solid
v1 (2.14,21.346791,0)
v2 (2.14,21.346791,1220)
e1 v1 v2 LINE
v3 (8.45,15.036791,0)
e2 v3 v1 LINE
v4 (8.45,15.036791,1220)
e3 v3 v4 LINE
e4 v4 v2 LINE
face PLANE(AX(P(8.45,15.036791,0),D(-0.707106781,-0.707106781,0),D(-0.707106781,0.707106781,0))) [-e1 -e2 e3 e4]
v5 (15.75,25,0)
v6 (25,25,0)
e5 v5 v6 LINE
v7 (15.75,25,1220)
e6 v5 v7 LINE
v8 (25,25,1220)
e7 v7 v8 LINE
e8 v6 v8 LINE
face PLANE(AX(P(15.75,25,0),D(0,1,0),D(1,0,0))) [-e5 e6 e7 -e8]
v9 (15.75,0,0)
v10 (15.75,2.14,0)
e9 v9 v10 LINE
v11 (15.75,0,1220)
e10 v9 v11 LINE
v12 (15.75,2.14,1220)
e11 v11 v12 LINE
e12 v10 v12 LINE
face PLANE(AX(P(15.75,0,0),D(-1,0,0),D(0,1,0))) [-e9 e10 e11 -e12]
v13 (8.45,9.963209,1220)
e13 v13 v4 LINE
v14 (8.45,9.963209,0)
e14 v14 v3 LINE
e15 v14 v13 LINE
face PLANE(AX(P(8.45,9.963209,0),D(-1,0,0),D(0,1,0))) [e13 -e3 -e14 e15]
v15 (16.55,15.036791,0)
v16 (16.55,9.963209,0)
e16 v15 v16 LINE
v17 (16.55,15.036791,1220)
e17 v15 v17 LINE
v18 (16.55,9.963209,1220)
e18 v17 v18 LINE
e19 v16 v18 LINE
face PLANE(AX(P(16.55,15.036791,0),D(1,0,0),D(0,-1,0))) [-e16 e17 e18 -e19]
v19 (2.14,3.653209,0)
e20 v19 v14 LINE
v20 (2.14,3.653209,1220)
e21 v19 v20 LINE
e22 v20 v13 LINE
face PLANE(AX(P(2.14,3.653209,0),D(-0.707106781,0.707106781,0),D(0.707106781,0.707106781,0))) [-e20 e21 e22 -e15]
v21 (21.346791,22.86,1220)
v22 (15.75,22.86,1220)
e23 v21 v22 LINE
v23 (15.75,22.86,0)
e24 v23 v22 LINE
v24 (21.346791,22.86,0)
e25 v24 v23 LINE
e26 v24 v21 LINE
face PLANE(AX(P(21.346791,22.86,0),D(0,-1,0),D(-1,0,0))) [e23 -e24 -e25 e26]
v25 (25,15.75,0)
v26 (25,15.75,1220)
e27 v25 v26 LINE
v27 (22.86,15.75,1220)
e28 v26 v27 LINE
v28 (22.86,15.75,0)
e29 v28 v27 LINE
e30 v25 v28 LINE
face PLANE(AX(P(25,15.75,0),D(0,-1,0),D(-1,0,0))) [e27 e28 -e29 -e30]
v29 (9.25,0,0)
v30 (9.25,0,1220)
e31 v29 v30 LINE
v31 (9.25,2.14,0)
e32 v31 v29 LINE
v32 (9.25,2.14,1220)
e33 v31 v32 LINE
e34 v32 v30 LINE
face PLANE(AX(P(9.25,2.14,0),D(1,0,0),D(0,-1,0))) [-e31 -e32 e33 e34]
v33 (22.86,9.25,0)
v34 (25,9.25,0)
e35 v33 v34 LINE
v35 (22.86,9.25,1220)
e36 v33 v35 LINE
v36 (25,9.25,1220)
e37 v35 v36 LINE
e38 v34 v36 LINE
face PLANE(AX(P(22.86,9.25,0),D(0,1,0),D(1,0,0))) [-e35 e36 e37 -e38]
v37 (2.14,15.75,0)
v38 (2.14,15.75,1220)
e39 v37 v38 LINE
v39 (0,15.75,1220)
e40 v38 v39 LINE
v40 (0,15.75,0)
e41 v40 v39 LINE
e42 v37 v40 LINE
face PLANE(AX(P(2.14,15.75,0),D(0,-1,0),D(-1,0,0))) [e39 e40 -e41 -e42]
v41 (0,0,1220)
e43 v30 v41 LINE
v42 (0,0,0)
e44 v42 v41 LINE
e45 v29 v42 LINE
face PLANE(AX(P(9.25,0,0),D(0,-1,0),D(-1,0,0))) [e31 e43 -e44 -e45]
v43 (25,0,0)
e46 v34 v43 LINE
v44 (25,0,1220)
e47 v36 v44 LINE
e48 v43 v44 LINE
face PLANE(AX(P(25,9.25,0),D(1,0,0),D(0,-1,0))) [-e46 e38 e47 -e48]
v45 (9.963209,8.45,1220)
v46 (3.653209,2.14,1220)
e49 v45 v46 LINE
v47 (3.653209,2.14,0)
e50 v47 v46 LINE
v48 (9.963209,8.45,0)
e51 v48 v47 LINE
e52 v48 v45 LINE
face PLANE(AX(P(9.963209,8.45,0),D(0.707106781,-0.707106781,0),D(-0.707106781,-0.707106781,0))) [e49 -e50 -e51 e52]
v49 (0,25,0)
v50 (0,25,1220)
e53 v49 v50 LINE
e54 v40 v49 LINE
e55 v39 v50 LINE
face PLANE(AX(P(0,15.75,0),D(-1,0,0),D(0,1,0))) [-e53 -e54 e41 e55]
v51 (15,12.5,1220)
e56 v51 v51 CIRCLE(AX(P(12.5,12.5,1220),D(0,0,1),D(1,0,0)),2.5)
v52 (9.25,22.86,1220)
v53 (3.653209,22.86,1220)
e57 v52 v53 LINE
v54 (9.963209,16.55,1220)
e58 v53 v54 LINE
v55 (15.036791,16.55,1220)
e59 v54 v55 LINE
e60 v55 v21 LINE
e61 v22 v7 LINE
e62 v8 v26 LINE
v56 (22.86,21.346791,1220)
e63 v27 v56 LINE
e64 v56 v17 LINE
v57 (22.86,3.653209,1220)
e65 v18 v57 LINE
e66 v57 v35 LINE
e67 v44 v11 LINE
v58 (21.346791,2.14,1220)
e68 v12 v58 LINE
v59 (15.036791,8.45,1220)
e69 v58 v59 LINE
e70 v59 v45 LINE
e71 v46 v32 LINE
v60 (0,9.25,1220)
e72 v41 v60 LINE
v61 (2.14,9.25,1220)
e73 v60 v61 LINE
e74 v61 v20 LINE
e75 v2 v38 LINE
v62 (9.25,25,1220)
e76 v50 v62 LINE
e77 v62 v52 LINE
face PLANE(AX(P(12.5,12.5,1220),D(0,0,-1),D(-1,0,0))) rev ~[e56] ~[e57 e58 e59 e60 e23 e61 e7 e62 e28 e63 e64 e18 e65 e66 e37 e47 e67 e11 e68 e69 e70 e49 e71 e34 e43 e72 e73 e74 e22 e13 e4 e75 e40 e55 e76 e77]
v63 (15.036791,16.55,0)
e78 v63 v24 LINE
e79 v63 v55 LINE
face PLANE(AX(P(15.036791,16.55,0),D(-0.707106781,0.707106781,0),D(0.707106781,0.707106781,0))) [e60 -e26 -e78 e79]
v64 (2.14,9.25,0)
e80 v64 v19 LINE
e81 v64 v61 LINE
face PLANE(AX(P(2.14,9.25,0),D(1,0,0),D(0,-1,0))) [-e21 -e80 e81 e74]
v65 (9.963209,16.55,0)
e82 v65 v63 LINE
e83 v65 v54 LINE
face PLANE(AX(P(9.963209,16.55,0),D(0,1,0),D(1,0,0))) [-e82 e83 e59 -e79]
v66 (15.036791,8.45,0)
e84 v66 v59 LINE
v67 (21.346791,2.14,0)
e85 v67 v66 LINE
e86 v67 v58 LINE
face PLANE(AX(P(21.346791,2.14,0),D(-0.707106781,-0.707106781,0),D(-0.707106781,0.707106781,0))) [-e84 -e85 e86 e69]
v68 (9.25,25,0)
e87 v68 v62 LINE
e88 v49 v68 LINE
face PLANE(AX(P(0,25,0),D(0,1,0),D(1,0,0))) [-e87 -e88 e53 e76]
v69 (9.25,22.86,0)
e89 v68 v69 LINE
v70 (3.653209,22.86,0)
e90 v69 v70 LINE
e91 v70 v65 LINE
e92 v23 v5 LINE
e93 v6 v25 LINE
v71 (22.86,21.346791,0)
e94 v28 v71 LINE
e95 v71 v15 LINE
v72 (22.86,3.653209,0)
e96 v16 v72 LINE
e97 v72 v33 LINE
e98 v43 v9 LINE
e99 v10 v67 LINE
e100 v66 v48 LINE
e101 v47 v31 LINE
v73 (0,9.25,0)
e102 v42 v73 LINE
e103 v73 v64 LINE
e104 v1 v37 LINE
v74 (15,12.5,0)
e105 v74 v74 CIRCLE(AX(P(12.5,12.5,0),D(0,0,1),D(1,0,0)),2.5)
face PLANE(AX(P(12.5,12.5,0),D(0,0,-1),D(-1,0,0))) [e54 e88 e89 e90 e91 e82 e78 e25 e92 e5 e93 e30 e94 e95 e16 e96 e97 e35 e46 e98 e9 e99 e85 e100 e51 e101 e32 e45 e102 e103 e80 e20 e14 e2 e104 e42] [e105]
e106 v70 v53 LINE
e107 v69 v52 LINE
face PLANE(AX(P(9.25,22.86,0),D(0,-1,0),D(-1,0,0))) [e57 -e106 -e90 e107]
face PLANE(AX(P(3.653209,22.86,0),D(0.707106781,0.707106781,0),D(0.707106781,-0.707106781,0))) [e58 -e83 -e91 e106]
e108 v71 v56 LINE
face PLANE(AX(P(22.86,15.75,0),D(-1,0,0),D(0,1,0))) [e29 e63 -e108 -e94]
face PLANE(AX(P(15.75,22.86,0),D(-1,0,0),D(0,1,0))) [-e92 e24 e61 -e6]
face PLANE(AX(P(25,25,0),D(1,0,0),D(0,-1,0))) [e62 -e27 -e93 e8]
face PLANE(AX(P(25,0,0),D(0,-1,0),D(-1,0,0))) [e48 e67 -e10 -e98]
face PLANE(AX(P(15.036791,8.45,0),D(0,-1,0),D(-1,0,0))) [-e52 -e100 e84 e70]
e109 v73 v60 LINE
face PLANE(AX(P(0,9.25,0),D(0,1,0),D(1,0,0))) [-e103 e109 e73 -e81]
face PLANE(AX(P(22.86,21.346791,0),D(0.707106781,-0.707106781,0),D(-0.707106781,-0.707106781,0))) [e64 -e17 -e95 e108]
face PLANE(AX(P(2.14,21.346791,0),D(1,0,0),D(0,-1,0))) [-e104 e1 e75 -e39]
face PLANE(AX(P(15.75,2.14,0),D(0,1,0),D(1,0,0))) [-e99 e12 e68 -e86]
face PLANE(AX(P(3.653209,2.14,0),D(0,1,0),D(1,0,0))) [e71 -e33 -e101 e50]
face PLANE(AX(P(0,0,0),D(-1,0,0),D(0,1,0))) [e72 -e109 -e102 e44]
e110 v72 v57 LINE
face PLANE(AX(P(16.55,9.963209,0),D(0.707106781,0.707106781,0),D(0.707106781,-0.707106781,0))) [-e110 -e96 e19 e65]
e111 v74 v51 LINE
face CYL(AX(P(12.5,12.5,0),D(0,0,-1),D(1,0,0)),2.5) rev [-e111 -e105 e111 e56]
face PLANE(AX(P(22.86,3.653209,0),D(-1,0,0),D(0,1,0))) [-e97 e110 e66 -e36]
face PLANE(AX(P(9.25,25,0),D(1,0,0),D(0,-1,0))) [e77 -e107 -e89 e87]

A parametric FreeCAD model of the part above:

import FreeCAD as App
import Part
import Sketcher

V = App.Vector
Q = App.Units.Quantity

doc = App.newDocument("Part")
params = doc.addObject("Spreadsheet::Sheet", "Params")
for row, (alias, value) in enumerate([
    ("sketch1_diameter", "5 mm"),
    ("sketch1_width", "2.14 mm"),
    ("sketch1_width2", "9.25 mm"),
    ("pad1_length", "1220 mm"),
], start=1):
    params.set(f"A{row}", alias)
    params.set(f"B{row}", "=" + value)
    params.setAlias(f"B{row}", alias)

body = doc.addObject("PartDesign::Body", "Body")

# Sketch on XY plane
sketch1 = doc.addObject("Sketcher::SketchObject", "Sketch")
body.addObject(sketch1)
sketch1.AttachmentSupport = (doc.XY_Plane, [""])
sketch1.MapMode = "FlatFace"
sketch1.addGeometry([
    Part.LineSegment(V(2.1, 21.3, 0), V(8.4, 15, 0)),  # 0
    Part.LineSegment(V(8.4, 15, 0), V(8.4, 10, 0)),  # 1
    Part.LineSegment(V(8.4, 10, 0), V(2.1, 3.7, 0)),  # 2
    Part.LineSegment(V(2.1, 3.7, 0), V(2.1, 9.2, 0)),  # 3
    Part.LineSegment(V(2.1, 9.2, 0), V(0, 9.2, 0)),  # 4
    Part.LineSegment(V(0, 9.2, 0), V(0, 0, 0)),  # 5
    Part.LineSegment(V(0, 0, 0), V(9.2, 0, 0)),  # 6
    Part.LineSegment(V(9.2, 0, 0), V(9.2, 2.1, 0)),  # 7
    Part.LineSegment(V(9.2, 2.1, 0), V(3.7, 2.1, 0)),  # 8
    Part.LineSegment(V(3.7, 2.1, 0), V(10, 8.4, 0)),  # 9
    Part.LineSegment(V(10, 8.4, 0), V(15, 8.4, 0)),  # 10
    Part.LineSegment(V(15, 8.4, 0), V(21.3, 2.1, 0)),  # 11
    Part.LineSegment(V(21.3, 2.1, 0), V(15.8, 2.1, 0)),  # 12
    Part.LineSegment(V(15.8, 2.1, 0), V(15.8, 0, 0)),  # 13
    Part.LineSegment(V(15.8, 0, 0), V(25, 0, 0)),  # 14
    Part.LineSegment(V(25, 0, 0), V(25, 9.2, 0)),  # 15
    Part.LineSegment(V(25, 9.2, 0), V(22.9, 9.2, 0)),  # 16
    Part.LineSegment(V(22.9, 9.2, 0), V(22.9, 3.7, 0)),  # 17
    Part.LineSegment(V(22.9, 3.7, 0), V(16.6, 10, 0)),  # 18
    Part.LineSegment(V(16.6, 10, 0), V(16.6, 15, 0)),  # 19
    Part.LineSegment(V(16.6, 15, 0), V(22.9, 21.3, 0)),  # 20
    Part.LineSegment(V(22.9, 21.3, 0), V(22.9, 15.8, 0)),  # 21
    Part.LineSegment(V(22.9, 15.8, 0), V(25, 15.8, 0)),  # 22
    Part.LineSegment(V(25, 15.8, 0), V(25, 25, 0)),  # 23
    Part.LineSegment(V(25, 25, 0), V(15.8, 25, 0)),  # 24
    Part.LineSegment(V(15.8, 25, 0), V(15.8, 22.9, 0)),  # 25
    Part.LineSegment(V(15.8, 22.9, 0), V(21.3, 22.9, 0)),  # 26
    Part.LineSegment(V(21.3, 22.9, 0), V(15, 16.6, 0)),  # 27
    Part.LineSegment(V(15, 16.6, 0), V(10, 16.6, 0)),  # 28
    Part.LineSegment(V(10, 16.6, 0), V(3.7, 22.9, 0)),  # 29
    Part.LineSegment(V(3.7, 22.9, 0), V(9.2, 22.9, 0)),  # 30
    Part.LineSegment(V(9.2, 22.9, 0), V(9.2, 25, 0)),  # 31
    Part.LineSegment(V(9.2, 25, 0), V(0, 25, 0)),  # 32
    Part.LineSegment(V(0, 25, 0), V(0, 15.8, 0)),  # 33
    Part.LineSegment(V(0, 15.8, 0), V(2.1, 15.8, 0)),  # 34
    Part.LineSegment(V(2.1, 15.8, 0), V(2.1, 21.3, 0)),  # 35
    Part.Circle(V(12.5, 12.5, 0), V(0, 0, 1), 2.5),  # 36
], False)
sketch1.addConstraint([
    Sketcher.Constraint("Coincident", 0, 2, 1, 1),
    Sketcher.Constraint("Coincident", 1, 2, 2, 1),
    Sketcher.Constraint("Coincident", 2, 2, 3, 1),
    Sketcher.Constraint("Coincident", 3, 2, 4, 1),
    Sketcher.Constraint("Coincident", 4, 2, 5, 1),
    Sketcher.Constraint("Coincident", 5, 2, 6, 1),
    Sketcher.Constraint("Coincident", 6, 2, 7, 1),
    Sketcher.Constraint("Coincident", 7, 2, 8, 1),
    Sketcher.Constraint("Coincident", 8, 2, 9, 1),
    Sketcher.Constraint("Coincident", 9, 2, 10, 1),
    Sketcher.Constraint("Coincident", 10, 2, 11, 1),
    Sketcher.Constraint("Coincident", 11, 2, 12, 1),
    Sketcher.Constraint("Coincident", 12, 2, 13, 1),
    Sketcher.Constraint("Coincident", 13, 2, 14, 1),
    Sketcher.Constraint("Coincident", 14, 2, 15, 1),
    Sketcher.Constraint("Coincident", 15, 2, 16, 1),
    Sketcher.Constraint("Coincident", 16, 2, 17, 1),
    Sketcher.Constraint("Coincident", 17, 2, 18, 1),
    Sketcher.Constraint("Coincident", 18, 2, 19, 1),
    Sketcher.Constraint("Coincident", 19, 2, 20, 1),
    Sketcher.Constraint("Coincident", 20, 2, 21, 1),
    Sketcher.Constraint("Coincident", 21, 2, 22, 1),
    Sketcher.Constraint("Coincident", 22, 2, 23, 1),
    Sketcher.Constraint("Coincident", 23, 2, 24, 1),
    Sketcher.Constraint("Coincident", 24, 2, 25, 1),
    Sketcher.Constraint("Coincident", 25, 2, 26, 1),
    Sketcher.Constraint("Coincident", 26, 2, 27, 1),
    Sketcher.Constraint("Coincident", 27, 2, 28, 1),
    Sketcher.Constraint("Coincident", 28, 2, 29, 1),
    Sketcher.Constraint("Coincident", 29, 2, 30, 1),
    Sketcher.Constraint("Coincident", 30, 2, 31, 1),
    Sketcher.Constraint("Coincident", 31, 2, 32, 1),
    Sketcher.Constraint("Coincident", 32, 2, 33, 1),
    Sketcher.Constraint("Coincident", 33, 2, 34, 1),
    Sketcher.Constraint("Coincident", 34, 2, 35, 1),
    Sketcher.Constraint("Coincident", 35, 2, 0, 1),
    Sketcher.Constraint("Vertical", 1),
    Sketcher.Constraint("Vertical", 3),
    Sketcher.Constraint("Horizontal", 4),
    Sketcher.Constraint("Vertical", 5),
    Sketcher.Constraint("Horizontal", 6),
    Sketcher.Constraint("Vertical", 7),
    Sketcher.Constraint("Horizontal", 8),
    Sketcher.Constraint("Horizontal", 10),
    Sketcher.Constraint("Horizontal", 12),
    Sketcher.Constraint("Vertical", 13),
    Sketcher.Constraint("Horizontal", 14),
    Sketcher.Constraint("Vertical", 15),
    Sketcher.Constraint("Horizontal", 16),
    Sketcher.Constraint("Vertical", 17),
    Sketcher.Constraint("Vertical", 19),
    Sketcher.Constraint("Vertical", 21),
    Sketcher.Constraint("Horizontal", 22),
    Sketcher.Constraint("Vertical", 23),
    Sketcher.Constraint("Horizontal", 24),
    Sketcher.Constraint("Vertical", 25),
    Sketcher.Constraint("Horizontal", 26),
    Sketcher.Constraint("Horizontal", 28),
    Sketcher.Constraint("Horizontal", 30),
    Sketcher.Constraint("Vertical", 31),
    Sketcher.Constraint("Horizontal", 32),
    Sketcher.Constraint("Vertical", 33),
    Sketcher.Constraint("Horizontal", 34),
    Sketcher.Constraint("Vertical", 35),
    Sketcher.Constraint("Coincident", 5, 2, -1, 1),
    Sketcher.Constraint("PointOnObject", 13, 2, -1),
    Sketcher.Constraint("PointOnObject", 32, 2, -2),
    Sketcher.Constraint("Perpendicular", 0, 2),
    Sketcher.Constraint("Parallel", 2, 9),
    Sketcher.Constraint("Perpendicular", 9, 11),
    Sketcher.Constraint("Parallel", 11, 18),
    Sketcher.Constraint("Perpendicular", 18, 20),
    Sketcher.Constraint("Parallel", 20, 27),
    Sketcher.Constraint("Perpendicular", 27, 29),
    Sketcher.Constraint("Horizontal", 8, 2, 11, 2),
    Sketcher.Constraint("Horizontal", 4, 2, 15, 2),
    Sketcher.Constraint("Horizontal", 2, 2, 17, 2),
    Sketcher.Constraint("Horizontal", 1, 2, 18, 2),
    Sketcher.Constraint("Horizontal", 0, 2, 19, 2),
    Sketcher.Constraint("Horizontal", 26, 2, 29, 2),
    Sketcher.Constraint("Horizontal", 24, 2, 31, 2),
    Sketcher.Constraint("Horizontal", 22, 2, 33, 2),
    Sketcher.Constraint("Horizontal", 20, 2, 35, 2),
    Sketcher.Constraint("Vertical", 17, 2, 20, 2),
    Sketcher.Constraint("Vertical", 15, 2, 22, 2),
    Sketcher.Constraint("Vertical", 13, 2, 24, 2),
    Sketcher.Constraint("Vertical", 11, 2, 26, 2),
    Sketcher.Constraint("Vertical", 10, 2, 27, 2),
    Sketcher.Constraint("Vertical", 9, 2, 28, 2),
    Sketcher.Constraint("Vertical", 8, 2, 29, 2),
    Sketcher.Constraint("Vertical", 7, 2, 30, 2),
    Sketcher.Constraint("Equal", 8, 12),
    Sketcher.Constraint("Equal", 6, 14),
    Sketcher.Constraint("Equal", 4, 16),
    Sketcher.Constraint("Equal", 28, 1),
    Sketcher.Constraint("Equal", 30, 3),
    Sketcher.Constraint("Equal", 32, 5),
    Sketcher.Constraint("Equal", 34, 7),
    Sketcher.Constraint("Equal", 17, 21),
    Sketcher.Constraint("Equal", 15, 23),
    Sketcher.Constraint("Equal", 13, 25),
    Sketcher.Constraint("Equal", 2, 9),
    Sketcher.Constraint("Diameter", 36, Q("5 mm")),
    Sketcher.Constraint("DistanceX", -1, 1, 14, 2, Q("25 mm")),
    Sketcher.Constraint("DistanceX", 4, 2, 4, 1, Q("2.14 mm")),
    Sketcher.Constraint("DistanceX", 6, 1, 6, 2, Q("9.25 mm")),
    Sketcher.Constraint("DistanceX", -1, 1, 36, 3, Q("12.5 mm")),
    Sketcher.Constraint("DistanceY", -1, 1, 36, 3, Q("12.5 mm")),
    Sketcher.Constraint("DistanceX", 1, 2, 6, 2, Q("0.8 mm")),
    Sketcher.Constraint("DistanceX", 8, 2, 8, 1, Q("5.596791 mm")),
])
sketch1.setExpression("Constraints[102]", "Params.sketch1_diameter")
sketch1.setExpression("Constraints[104]", "Params.sketch1_width")
sketch1.setExpression("Constraints[105]", "Params.sketch1_width2")
pad1 = doc.addObject("PartDesign::Pad", "Pad")
body.addObject(pad1)
pad1.Profile = sketch1
pad1.setExpression("Length", "Params.pad1_length")

doc.recompute()
